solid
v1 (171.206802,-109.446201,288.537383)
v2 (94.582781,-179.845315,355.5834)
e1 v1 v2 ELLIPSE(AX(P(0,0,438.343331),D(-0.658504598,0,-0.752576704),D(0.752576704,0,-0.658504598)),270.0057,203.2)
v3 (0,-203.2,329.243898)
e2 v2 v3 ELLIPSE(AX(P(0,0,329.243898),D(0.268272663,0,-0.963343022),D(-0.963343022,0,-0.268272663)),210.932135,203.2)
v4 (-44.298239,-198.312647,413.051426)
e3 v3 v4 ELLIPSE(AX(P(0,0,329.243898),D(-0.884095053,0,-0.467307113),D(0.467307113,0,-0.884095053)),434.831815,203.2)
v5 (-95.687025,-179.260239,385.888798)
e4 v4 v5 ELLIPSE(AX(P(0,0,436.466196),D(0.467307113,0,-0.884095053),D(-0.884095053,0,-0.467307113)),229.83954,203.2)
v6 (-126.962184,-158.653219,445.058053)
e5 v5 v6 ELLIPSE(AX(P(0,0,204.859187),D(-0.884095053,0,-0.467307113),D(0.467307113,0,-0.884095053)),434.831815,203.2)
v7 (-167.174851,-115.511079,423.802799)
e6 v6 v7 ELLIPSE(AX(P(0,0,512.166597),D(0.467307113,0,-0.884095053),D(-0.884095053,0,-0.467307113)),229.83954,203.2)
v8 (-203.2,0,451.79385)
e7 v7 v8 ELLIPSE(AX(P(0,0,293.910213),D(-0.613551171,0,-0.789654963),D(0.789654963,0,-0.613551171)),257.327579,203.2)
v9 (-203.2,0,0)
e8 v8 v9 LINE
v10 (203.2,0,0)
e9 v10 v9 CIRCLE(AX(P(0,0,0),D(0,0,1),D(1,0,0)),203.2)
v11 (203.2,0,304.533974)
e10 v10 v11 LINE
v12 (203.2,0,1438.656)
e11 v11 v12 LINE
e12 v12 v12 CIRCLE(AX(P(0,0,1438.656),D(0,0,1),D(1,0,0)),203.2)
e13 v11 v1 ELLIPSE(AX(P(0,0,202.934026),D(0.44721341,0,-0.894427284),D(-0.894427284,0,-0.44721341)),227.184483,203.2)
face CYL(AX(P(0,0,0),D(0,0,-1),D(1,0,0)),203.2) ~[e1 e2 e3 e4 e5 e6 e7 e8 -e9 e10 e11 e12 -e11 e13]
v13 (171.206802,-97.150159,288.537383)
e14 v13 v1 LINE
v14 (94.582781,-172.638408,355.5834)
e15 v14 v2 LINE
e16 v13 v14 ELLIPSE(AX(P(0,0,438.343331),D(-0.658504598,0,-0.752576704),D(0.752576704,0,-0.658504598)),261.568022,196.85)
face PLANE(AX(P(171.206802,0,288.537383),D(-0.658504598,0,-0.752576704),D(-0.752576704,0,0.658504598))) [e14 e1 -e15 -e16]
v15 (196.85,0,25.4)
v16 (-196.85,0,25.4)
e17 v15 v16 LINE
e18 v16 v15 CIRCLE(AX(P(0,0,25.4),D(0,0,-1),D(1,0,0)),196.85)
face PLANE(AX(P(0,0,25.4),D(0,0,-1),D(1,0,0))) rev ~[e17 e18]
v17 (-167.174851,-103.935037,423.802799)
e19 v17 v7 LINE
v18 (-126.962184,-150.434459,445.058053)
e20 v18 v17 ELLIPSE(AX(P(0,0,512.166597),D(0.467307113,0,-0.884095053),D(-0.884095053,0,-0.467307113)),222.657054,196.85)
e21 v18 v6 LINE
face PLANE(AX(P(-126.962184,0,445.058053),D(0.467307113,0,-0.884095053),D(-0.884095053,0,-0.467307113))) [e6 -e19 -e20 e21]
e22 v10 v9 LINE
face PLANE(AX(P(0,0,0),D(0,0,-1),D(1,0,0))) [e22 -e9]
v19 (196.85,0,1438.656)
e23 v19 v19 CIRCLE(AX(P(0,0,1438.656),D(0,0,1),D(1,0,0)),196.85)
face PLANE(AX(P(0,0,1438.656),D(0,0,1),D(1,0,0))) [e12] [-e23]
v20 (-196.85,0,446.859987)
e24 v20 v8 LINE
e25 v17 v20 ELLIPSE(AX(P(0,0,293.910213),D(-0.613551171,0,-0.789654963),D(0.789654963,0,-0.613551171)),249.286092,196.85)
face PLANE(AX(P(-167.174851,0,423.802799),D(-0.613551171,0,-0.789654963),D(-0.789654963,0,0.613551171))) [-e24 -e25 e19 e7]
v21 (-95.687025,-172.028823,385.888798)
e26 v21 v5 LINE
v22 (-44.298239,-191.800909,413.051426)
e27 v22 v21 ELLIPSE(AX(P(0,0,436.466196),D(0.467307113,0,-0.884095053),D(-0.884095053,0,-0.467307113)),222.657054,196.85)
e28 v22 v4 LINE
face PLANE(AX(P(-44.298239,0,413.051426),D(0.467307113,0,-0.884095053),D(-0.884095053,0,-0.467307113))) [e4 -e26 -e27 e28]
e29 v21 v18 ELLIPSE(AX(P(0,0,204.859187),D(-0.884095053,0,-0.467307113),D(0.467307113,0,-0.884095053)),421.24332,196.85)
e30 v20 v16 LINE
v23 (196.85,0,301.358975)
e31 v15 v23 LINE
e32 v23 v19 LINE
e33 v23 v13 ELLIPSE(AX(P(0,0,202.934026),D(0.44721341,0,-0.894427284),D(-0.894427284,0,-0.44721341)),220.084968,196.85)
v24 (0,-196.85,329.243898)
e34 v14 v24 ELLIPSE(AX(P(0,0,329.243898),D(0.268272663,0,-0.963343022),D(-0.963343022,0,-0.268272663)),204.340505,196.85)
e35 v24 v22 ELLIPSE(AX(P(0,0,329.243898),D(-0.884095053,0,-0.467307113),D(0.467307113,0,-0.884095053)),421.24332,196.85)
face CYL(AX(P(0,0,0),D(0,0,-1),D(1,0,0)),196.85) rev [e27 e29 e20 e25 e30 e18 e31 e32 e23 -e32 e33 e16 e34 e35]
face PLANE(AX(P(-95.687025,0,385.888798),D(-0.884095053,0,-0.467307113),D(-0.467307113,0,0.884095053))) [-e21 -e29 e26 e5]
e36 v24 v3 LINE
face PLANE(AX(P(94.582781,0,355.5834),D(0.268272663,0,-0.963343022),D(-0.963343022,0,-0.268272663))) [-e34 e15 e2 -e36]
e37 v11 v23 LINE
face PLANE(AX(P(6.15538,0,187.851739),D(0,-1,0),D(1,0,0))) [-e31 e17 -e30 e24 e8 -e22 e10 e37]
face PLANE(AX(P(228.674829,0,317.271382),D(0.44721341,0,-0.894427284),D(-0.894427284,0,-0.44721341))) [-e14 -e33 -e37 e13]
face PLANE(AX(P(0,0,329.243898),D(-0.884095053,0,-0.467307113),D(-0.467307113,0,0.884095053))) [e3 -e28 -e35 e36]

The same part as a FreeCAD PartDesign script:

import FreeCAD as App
import Part
import Sketcher

V = App.Vector
Q = App.Units.Quantity

doc = App.newDocument("Part")
body = doc.addObject("PartDesign::Body", "Body")

sketch1 = body.newObject("Sketcher::SketchObject", "Sketch")
sketch1.AttachmentSupport = (doc.getObject("XY_Plane"), [""])
sketch1.MapMode = "FlatFace"
sketch1.addGeometry([
    Part.Circle(V(0, 0, 0), V(0, 0, 1), 203),
    Part.Circle(V(0, 0, 0), V(0, 0, 1), 197),
], False)
sketch1.addConstraint([
    Sketcher.Constraint("Coincident", 0, 3, -1, 1),
    Sketcher.Constraint("Coincident", 1, 3, -1, 1),
    Sketcher.Constraint("Diameter", 0, Q("16 in")),
    Sketcher.Constraint("Diameter", 1, Q("15.5 in")),
])
pad1 = body.newObject("PartDesign::Pad", "Pad")
pad1.Profile = sketch1
pad1.Length = Q("56.64 in")

sketch2 = body.newObject("Sketcher::SketchObject", "Sketch001")
sketch2.AttachmentSupport = (doc.getObject("XY_Plane"), [""])
sketch2.MapMode = "FlatFace"
sketch2.addGeometry(Part.Circle(V(0, 0, 0), V(0, 0, 1), 197), False)
sketch2.addConstraint([
    Sketcher.Constraint("Coincident", 0, 3, -1, 1),
    Sketcher.Constraint("Diameter", 0, Q("15.5 in")),
])
pad2 = body.newObject("PartDesign::Pad", "Pad001")
pad2.Profile = sketch2
pad2.Length = Q("1 in")

sketch3 = body.newObject("Sketcher::SketchObject", "Sketch002")
sketch3.AttachmentSupport = (doc.getObject("XZ_Plane"), [""])
sketch3.MapMode = "FlatFace"
sketch3.addGeometry([
    Part.LineSegment(V(-233, 475, 0), V(-262, -28, 0)),
    Part.LineSegment(V(-262, -28, 0), V(320, -28, 0)),
    Part.LineSegment(V(320, -28, 0), V(320, 289, 0)),
    Part.LineSegment(V(320, 289, 0), V(229, 317, 0)),
    Part.LineSegment(V(229, 317, 0), V(171, 289, 0)),
    Part.LineSegment(V(171, 289, 0), V(95, 356, 0)),
    Part.LineSegment(V(95, 356, 0), V(0, 329, 0)),
    Part.LineSegment(V(0, 329, 0), V(-44, 413, 0)),
    Part.LineSegment(V(-44, 413, 0), V(-96, 386, 0)),
    Part.LineSegment(V(-96, 386, 0), V(-127, 445, 0)),
    Part.LineSegment(V(-127, 445, 0), V(-167, 424, 0)),
    Part.LineSegment(V(-167, 424, 0), V(-233, 475, 0)),
], False)
sketch3.addConstraint([
    Sketcher.Constraint("Coincident", 0, 2, 1, 1),
    Sketcher.Constraint("Coincident", 1, 2, 2, 1),
    Sketcher.Constraint("Coincident", 2, 2, 3, 1),
    Sketcher.Constraint("Coincident", 3, 2, 4, 1),
    Sketcher.Constraint("Coincident", 4, 2, 5, 1),
    Sketcher.Constraint("Coincident", 5, 2, 6, 1),
    Sketcher.Constraint("Coincident", 6, 2, 7, 1),
    Sketcher.Constraint("Coincident", 7, 2, 8, 1),
    Sketcher.Constraint("Coincident", 8, 2, 9, 1),
    Sketcher.Constraint("Coincident", 9, 2, 10, 1),
    Sketcher.Constraint("Coincident", 10, 2, 11, 1),
    Sketcher.Constraint("Coincident", 11, 2, 0, 1),
    Sketcher.Constraint("Horizontal", 1),
    Sketcher.Constraint("Vertical", 2),
    Sketcher.Constraint("PointOnObject", 6, 2, -2),
    Sketcher.Constraint("Perpendicular", 7, 8),
    Sketcher.Constraint("Perpendicular", 8, 9),
    Sketcher.Constraint("Perpendicular", 9, 10),
    Sketcher.Constraint("Horizontal", 2, 2, 4, 2),
    Sketcher.Constraint("Distance", 4, 64.251201),
    Sketcher.Constraint("DistanceX", 1, 1, 1, 2, 581.863672),
    Sketcher.Constraint("DistanceY", -1, 1, 5, 2, 355.5834),
    Sketcher.Constraint("DistanceY", -1, 1, 6, 2, 329.243898),
    Sketcher.Constraint("DistanceY", -1, 1, 8, 2, 385.888798),
    Sketcher.Constraint("DistanceY", -1, 1, 10, 2, 423.802799),
    Sketcher.Constraint("DistanceY", 2, 2, 3, 2, 28.733999),
    Sketcher.Constraint("Distance", 6, 98.18183),
    Sketcher.Constraint("Distance", 8, 58.12586),
    Sketcher.Constraint("Distance", 9, 66.92635),
    Sketcher.Constraint("Distance", 10, 45.484551),
    Sketcher.Constraint("Distance", 11, 83.946738),
    Sketcher.Constraint("DistanceY", 2, 1, 2, 2, 316.074116),
    Sketcher.Constraint("DistanceX", -1, 1, 1, 2, 319.665849),
    Sketcher.Constraint("DistanceX", -1, 1, 3, 2, 228.674829),
    Sketcher.Constraint("DistanceY", -1, 1, 3, 2, 317.271382),
    Sketcher.Constraint("DistanceX", 11, 2, -1, 1, 233.463809),
])
pocket1 = body.newObject("PartDesign::Pocket", "Pocket")
pocket1.Profile = sketch3
pocket1.Length = Q("20 in")
pocket1.Reversed = True

doc.recompute()
